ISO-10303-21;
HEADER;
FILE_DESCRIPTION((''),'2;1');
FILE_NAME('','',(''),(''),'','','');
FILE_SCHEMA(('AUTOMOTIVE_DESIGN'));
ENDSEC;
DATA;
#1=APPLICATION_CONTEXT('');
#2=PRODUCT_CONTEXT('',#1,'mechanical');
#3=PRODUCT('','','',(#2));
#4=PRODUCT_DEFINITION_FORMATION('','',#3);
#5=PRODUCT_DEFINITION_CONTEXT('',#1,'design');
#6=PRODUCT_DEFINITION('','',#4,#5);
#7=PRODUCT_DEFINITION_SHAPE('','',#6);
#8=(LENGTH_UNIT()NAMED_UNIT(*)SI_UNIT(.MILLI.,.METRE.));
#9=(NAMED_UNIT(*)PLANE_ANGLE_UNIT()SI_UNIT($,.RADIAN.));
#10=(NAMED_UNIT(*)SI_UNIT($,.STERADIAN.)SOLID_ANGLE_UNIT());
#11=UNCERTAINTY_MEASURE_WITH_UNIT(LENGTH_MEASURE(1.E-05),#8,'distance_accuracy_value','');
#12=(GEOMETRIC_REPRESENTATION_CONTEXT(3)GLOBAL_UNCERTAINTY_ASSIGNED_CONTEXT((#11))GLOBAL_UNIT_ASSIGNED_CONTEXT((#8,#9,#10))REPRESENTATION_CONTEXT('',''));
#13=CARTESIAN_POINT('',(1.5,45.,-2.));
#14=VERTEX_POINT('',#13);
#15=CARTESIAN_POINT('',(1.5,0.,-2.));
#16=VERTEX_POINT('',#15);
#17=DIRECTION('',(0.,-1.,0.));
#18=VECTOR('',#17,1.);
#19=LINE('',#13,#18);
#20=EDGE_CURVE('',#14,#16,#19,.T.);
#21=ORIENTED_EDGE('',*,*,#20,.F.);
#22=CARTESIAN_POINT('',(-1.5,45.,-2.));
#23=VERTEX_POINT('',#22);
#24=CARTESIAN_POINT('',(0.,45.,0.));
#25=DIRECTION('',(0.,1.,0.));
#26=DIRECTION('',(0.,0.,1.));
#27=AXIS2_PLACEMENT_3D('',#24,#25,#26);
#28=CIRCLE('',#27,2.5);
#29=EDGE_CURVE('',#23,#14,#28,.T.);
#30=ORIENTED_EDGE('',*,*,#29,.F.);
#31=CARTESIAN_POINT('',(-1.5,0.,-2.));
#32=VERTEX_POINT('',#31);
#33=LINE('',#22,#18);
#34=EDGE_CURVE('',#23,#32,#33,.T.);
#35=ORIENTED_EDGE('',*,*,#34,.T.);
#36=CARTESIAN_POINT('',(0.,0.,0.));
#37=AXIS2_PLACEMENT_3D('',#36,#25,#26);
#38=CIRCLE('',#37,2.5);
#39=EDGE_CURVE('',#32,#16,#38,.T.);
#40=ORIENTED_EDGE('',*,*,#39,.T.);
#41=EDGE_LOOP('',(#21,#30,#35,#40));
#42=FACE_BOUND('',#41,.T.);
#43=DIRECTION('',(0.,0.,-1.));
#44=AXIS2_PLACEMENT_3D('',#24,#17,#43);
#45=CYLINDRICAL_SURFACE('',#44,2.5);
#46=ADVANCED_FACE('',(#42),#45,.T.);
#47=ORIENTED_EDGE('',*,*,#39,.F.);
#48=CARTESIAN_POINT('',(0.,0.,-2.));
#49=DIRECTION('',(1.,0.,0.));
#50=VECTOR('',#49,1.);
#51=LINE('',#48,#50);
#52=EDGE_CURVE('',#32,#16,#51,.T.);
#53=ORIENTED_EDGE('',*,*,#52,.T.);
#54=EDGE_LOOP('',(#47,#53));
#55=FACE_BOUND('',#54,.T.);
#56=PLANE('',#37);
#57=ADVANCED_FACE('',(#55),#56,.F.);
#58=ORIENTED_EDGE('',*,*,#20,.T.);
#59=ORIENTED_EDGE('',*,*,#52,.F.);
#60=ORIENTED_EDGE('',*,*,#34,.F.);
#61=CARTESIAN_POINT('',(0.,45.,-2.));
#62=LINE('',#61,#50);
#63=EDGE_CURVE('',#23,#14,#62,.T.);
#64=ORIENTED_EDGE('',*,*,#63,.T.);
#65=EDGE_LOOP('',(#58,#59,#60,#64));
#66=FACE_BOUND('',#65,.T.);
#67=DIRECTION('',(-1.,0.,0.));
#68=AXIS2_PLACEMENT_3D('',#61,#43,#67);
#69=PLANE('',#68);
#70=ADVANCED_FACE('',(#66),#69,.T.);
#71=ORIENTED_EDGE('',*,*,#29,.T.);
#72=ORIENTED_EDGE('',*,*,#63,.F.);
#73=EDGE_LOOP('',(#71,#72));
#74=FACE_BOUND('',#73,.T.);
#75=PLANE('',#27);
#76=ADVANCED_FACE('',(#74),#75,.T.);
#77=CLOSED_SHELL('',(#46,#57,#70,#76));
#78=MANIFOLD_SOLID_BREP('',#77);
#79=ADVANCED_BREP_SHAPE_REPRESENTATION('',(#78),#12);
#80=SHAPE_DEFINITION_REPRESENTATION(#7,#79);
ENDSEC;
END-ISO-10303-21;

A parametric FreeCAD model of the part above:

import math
import FreeCAD as App
import Part
import Sketcher

V = App.Vector

doc = App.newDocument("Part")
body = doc.addObject("PartDesign::Body", "Body")

# Sketch on XZ plane
sketch1 = body.newObject("Sketcher::SketchObject", "Sketch")
sketch1.AttachmentSupport = (doc.getObject("XZ_Plane"), [""])
sketch1.MapMode = "FlatFace"
sketch1.addGeometry(Part.ArcOfCircle(Part.Circle(V(0, 0, 0), V(0, 0, 1), 2.5), math.radians(90), math.radians(233)), False)
sketch1.addGeometry(Part.ArcOfCircle(Part.Circle(V(0, 0, 0), V(0, 0, 1), 2.5), math.radians(0), math.radians(90)), False)
sketch1.addGeometry(Part.ArcOfCircle(Part.Circle(V(0, 0, 0), V(0, 0, 1), 2.5), math.radians(-53), math.radians(0)), False)
sketch1.addGeometry(Part.LineSegment(V(1.5, -2, 0), V(-1.5, -2, 0)), False)
sketch1.addConstraint(Sketcher.Constraint("Tangent", 0, 1, 1, 2))
sketch1.addConstraint(Sketcher.Constraint("Tangent", 1, 1, 2, 2))
sketch1.addConstraint(Sketcher.Constraint("Coincident", 2, 1, 3, 1))
sketch1.addConstraint(Sketcher.Constraint("Coincident", 3, 2, 0, 2))
sketch1.addConstraint(Sketcher.Constraint("Horizontal", 3))
sketch1.addConstraint(Sketcher.Constraint("Coincident", 0, 3, -1, 1))
sketch1.addConstraint(Sketcher.Constraint("Coincident", 2, 3, -1, 1))
sketch1.addConstraint(Sketcher.Constraint("PointOnObject", 0, 1, -2))
sketch1.addConstraint(Sketcher.Constraint("PointOnObject", 1, 1, -1))
sketch1.addConstraint(Sketcher.Constraint("Radius", 0, 2.5))
sketch1.addConstraint(Sketcher.Constraint("DistanceX", 3, 2, 3, 1, 3.0))
pad1 = body.newObject("PartDesign::Pad", "Pad")
pad1.Profile = sketch1
pad1.Length = 45
pad1.Reversed = True

doc.recompute()
